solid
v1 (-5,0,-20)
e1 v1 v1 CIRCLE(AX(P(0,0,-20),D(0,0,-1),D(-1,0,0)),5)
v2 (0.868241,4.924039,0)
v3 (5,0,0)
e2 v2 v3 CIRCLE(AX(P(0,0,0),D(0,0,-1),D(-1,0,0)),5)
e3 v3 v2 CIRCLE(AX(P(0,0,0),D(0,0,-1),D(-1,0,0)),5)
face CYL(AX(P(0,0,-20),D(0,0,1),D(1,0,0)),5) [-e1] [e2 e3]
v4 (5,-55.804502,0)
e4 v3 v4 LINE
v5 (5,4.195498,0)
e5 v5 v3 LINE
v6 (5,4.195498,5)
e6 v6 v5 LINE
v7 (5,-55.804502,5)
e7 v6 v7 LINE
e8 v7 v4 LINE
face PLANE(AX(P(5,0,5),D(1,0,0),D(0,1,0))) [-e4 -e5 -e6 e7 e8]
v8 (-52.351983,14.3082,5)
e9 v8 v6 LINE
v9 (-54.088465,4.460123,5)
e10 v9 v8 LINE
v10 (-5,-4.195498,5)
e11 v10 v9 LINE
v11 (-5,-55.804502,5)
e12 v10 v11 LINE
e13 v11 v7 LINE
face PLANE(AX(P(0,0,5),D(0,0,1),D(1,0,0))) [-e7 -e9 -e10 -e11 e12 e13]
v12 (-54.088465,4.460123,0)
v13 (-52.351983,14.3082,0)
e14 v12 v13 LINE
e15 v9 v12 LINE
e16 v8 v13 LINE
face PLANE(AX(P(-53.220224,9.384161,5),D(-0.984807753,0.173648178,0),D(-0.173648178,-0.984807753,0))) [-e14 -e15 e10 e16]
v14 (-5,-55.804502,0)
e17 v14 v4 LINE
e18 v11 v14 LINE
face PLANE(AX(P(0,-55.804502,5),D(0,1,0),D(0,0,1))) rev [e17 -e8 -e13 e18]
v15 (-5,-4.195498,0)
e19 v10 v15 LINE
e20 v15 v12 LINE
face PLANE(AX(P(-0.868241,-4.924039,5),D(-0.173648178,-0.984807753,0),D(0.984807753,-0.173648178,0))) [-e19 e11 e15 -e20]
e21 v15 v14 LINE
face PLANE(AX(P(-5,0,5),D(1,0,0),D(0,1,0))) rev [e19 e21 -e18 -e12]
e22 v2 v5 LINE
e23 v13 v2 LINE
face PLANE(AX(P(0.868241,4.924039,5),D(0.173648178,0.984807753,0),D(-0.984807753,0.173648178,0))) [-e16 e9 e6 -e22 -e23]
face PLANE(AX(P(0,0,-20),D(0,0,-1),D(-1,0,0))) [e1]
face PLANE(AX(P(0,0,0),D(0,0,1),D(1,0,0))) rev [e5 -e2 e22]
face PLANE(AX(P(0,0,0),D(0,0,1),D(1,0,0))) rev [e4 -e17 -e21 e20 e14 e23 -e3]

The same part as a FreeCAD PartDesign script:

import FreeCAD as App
import Part
import Sketcher
from FreeCAD import Vector
Q = App.Units.Quantity


def add_polygon(sketch, points):
    """Adds a closed chain of lines whose ends are joined by coincident constraints."""
    first, n = sketch.GeometryCount, len(points)
    for a, b in zip(points, points[1:] + points[:1]):
        sketch.addGeometry(Part.LineSegment(App.Vector(*a, 0), App.Vector(*b, 0)), False)
    for i in range(n):
        sketch.addConstraint(Sketcher.Constraint("Coincident", first + i, 2, first + (i + 1) % n, 1))

doc = App.newDocument("Part")
body = doc.addObject("PartDesign::Body", "Body")

# Sketch on XY plane
sketch1 = doc.addObject("Sketcher::SketchObject", "Sketch")
body.addObject(sketch1)
sketch1.AttachmentSupport = (doc.XY_Plane, [""])
sketch1.MapMode = "FlatFace"
add_polygon(sketch1, [(-5, -4), (-5, -56), (5, -56), (5, 4), (-52, 14), (-54, 4)])  # lines 0-5
sketch1.addConstraint([
    Sketcher.Constraint("Vertical", 0),
    Sketcher.Constraint("Horizontal", 1),
    Sketcher.Constraint("Vertical", 2),
    Sketcher.Constraint("Symmetric", 2, 2, 5, 2, -1, 1),
    Sketcher.Constraint("Perpendicular", 3, 4),
    Sketcher.Constraint("Perpendicular", 4, 5),
    Sketcher.Constraint("DistanceX", 1, 1, 1, 2, Q("10 mm")),
    Sketcher.Constraint("DistanceY", 2, 1, 2, 2, Q("60 mm")),
    Sketcher.Constraint("Angle", 3, Q("170 deg")),
    Sketcher.Constraint("Distance", 4, Q("10 mm")),
    Sketcher.Constraint("DistanceY", -1, 1, 3, 2, Q("14.3082 mm")),
])
pad1 = doc.addObject("PartDesign::Pad", "Pad")
body.addObject(pad1)
pad1.Profile = sketch1
pad1.Length = 5

# Sketch on XY plane
sketch2 = doc.addObject("Sketcher::SketchObject", "Sketch001")
body.addObject(sketch2)
sketch2.AttachmentSupport = (doc.XY_Plane, [""])
sketch2.MapMode = "FlatFace"
sketch2.addGeometry(Part.Circle(Vector(0, 0, 0), Vector(0, 0, 1), 5), False)
sketch2.addConstraint([
    Sketcher.Constraint("Coincident", 0, 3, -1, 1),
    Sketcher.Constraint("Diameter", 0, Q("10 mm")),
])
pad2 = doc.addObject("PartDesign::Pad", "Pad001")
body.addObject(pad2)
pad2.Profile = sketch2
pad2.Length = 20
pad2.Reversed = True

doc.recompute()
